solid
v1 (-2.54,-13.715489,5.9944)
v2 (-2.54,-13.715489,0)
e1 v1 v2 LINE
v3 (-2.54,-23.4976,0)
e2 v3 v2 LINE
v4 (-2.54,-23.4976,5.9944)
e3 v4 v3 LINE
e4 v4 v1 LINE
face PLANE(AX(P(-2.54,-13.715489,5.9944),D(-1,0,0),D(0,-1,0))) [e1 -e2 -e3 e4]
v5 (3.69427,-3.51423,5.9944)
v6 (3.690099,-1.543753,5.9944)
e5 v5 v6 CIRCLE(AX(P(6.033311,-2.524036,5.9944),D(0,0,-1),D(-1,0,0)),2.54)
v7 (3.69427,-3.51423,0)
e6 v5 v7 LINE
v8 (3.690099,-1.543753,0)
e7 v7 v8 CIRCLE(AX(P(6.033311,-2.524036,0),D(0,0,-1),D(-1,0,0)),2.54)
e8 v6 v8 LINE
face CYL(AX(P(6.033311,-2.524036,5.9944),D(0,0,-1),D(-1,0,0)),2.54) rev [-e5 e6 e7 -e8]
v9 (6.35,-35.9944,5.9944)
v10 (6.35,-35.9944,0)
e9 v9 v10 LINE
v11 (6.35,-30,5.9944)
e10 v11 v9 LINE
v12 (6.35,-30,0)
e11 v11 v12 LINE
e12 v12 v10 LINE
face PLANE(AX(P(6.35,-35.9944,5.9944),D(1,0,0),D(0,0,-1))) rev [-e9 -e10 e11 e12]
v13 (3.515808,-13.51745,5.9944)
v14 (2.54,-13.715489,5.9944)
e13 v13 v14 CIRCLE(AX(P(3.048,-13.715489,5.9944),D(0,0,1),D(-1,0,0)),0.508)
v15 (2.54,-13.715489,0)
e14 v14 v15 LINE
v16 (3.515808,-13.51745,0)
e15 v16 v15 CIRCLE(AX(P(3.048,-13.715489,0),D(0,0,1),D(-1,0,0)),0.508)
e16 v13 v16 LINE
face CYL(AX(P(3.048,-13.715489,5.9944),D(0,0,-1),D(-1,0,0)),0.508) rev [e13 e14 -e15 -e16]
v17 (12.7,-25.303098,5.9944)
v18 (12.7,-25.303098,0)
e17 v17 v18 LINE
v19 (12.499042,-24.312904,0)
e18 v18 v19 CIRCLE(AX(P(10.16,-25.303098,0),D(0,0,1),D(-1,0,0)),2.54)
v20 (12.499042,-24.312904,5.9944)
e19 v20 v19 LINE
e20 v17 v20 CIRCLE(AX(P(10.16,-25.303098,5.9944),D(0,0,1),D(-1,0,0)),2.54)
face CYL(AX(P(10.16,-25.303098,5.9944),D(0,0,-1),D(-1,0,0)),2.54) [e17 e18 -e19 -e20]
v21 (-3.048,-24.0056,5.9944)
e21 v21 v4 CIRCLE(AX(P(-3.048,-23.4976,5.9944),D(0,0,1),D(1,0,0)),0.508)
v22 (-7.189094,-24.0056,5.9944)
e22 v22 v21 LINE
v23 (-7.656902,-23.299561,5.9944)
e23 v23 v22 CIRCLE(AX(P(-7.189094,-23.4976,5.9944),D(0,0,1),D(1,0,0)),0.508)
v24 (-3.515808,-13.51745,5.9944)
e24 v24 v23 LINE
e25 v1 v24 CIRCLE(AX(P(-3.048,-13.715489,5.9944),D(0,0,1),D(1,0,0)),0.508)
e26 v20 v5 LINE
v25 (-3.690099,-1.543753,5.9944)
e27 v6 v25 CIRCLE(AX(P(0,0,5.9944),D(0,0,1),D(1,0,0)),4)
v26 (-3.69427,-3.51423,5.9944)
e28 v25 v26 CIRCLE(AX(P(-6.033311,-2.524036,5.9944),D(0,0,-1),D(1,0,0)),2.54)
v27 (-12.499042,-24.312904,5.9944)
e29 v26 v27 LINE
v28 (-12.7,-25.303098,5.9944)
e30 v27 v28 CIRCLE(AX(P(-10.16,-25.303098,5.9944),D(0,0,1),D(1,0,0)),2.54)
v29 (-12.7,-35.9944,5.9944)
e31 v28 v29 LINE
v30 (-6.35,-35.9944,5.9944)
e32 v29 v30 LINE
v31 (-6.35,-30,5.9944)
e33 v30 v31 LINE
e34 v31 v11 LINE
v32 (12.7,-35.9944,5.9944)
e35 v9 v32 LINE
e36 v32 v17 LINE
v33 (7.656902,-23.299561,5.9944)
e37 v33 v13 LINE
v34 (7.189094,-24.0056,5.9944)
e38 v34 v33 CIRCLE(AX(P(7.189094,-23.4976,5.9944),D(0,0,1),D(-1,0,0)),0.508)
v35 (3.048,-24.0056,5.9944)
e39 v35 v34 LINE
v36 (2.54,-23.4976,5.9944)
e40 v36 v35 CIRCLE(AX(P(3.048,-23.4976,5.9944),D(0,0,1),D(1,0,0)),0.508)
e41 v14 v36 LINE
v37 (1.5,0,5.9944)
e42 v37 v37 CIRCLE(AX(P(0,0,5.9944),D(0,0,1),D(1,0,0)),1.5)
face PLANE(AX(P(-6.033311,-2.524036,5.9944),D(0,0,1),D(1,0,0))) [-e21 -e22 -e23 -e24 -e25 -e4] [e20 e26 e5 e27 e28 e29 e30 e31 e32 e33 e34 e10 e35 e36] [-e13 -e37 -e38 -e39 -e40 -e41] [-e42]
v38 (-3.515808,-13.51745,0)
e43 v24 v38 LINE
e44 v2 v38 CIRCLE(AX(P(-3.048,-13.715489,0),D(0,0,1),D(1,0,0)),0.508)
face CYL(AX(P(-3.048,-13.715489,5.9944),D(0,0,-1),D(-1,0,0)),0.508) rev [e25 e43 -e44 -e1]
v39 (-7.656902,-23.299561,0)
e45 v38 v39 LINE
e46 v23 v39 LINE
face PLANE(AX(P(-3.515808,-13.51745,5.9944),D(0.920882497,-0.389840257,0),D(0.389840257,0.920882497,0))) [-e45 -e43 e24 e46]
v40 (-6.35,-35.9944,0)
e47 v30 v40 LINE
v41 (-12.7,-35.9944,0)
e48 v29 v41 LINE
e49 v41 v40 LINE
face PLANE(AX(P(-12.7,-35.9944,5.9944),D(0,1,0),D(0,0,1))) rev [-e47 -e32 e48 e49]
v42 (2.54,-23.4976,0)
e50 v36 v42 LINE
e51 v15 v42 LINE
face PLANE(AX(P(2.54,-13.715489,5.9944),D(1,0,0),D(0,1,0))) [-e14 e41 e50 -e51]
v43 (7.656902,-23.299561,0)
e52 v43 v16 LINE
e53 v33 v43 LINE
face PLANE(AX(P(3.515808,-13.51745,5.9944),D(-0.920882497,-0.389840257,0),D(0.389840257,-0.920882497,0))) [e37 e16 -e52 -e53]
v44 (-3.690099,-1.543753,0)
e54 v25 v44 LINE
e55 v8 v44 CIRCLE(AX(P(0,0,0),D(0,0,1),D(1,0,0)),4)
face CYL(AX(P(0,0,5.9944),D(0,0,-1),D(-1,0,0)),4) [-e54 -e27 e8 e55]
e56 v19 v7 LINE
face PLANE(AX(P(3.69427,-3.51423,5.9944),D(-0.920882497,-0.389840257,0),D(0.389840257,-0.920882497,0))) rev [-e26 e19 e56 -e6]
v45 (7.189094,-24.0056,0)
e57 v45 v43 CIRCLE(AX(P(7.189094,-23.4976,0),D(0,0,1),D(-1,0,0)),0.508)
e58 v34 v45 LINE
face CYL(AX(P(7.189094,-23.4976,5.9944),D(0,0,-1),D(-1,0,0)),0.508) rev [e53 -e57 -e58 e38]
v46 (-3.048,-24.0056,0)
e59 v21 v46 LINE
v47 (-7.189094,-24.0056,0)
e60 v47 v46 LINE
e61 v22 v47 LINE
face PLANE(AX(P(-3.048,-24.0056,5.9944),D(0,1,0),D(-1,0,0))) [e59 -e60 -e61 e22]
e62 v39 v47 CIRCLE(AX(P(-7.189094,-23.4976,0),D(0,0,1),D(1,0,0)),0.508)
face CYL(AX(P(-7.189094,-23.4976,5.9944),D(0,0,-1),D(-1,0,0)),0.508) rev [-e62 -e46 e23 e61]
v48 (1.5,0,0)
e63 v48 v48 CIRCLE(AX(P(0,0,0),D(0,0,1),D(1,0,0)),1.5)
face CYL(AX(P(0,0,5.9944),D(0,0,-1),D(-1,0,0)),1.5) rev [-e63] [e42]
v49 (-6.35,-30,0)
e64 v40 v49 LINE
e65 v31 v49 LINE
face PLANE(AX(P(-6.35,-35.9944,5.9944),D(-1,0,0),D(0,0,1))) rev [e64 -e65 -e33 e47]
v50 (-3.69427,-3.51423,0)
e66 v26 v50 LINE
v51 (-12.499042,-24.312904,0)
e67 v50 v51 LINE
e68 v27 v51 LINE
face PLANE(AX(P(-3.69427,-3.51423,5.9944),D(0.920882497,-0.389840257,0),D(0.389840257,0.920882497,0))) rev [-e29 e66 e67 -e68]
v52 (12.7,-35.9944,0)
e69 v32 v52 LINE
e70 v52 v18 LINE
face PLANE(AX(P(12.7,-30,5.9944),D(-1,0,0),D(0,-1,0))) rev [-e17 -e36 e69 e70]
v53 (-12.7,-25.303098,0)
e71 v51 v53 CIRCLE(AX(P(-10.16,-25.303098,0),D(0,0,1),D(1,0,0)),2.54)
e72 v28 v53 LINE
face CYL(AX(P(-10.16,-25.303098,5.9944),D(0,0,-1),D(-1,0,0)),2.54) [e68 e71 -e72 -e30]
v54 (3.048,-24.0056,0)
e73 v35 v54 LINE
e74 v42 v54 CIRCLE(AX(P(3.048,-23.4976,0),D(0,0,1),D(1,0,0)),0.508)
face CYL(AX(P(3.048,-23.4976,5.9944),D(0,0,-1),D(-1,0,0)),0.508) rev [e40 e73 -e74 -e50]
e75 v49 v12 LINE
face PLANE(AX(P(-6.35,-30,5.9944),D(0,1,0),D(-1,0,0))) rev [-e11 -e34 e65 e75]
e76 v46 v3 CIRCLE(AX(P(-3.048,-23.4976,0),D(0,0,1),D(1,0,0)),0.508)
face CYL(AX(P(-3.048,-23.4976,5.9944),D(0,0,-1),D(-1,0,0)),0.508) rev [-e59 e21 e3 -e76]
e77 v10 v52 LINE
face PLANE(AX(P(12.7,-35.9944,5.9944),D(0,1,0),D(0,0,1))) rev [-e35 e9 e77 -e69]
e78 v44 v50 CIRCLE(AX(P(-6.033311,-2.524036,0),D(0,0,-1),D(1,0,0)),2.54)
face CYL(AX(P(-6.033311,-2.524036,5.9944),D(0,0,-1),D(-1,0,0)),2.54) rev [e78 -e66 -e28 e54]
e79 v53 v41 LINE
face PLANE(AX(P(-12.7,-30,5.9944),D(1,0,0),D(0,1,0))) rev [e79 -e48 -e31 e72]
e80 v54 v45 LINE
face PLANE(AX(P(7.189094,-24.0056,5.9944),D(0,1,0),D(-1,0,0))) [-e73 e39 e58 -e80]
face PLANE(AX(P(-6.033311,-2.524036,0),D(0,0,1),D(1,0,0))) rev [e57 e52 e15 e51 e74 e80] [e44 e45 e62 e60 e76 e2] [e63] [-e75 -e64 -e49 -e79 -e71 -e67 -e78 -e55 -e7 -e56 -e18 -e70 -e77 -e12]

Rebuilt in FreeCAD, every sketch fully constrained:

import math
import FreeCAD as App
import Part
import Sketcher
Q = App.Units.Quantity

doc = App.newDocument("Part")
body = doc.addObject("PartDesign::Body", "Body")

sketch1 = body.newObject("Sketcher::SketchObject", "Sketch")
sketch1.AttachmentSupport = (doc.getObject("XY_Plane"), [""])
sketch1.MapMode = "FlatFace"
sketch1.addGeometry([
    Part.LineSegment(App.Vector(-12.7, -25.3, 0), App.Vector(-12.7, -36, 0)),
    Part.LineSegment(App.Vector(-12.7, -36, 0), App.Vector(-6.3, -36, 0)),
    Part.LineSegment(App.Vector(-6.3, -36, 0), App.Vector(-6.3, -30, 0)),
    Part.LineSegment(App.Vector(-6.3, -30, 0), App.Vector(6.3, -30, 0)),
    Part.LineSegment(App.Vector(6.3, -30, 0), App.Vector(6.3, -36, 0)),
    Part.LineSegment(App.Vector(6.3, -36, 0), App.Vector(12.7, -36, 0)),
    Part.LineSegment(App.Vector(12.7, -36, 0), App.Vector(12.7, -25.3, 0)),
    Part.ArcOfCircle(Part.Circle(App.Vector(10.2, -25.3, 0), App.Vector(0, 0, 1), 2.5), math.radians(0), math.radians(23)),
    Part.LineSegment(App.Vector(12.5, -24.3, 0), App.Vector(3.7, -3.5, 0)),
    Part.ArcOfCircle(Part.Circle(App.Vector(6, -2.5, 0), App.Vector(0, 0, 1), 2.5), math.radians(157), math.radians(203)),
    Part.ArcOfCircle(Part.Circle(App.Vector(0, 0, 0), App.Vector(0, 0, 1), 4), math.radians(-23), math.radians(203)),
    Part.ArcOfCircle(Part.Circle(App.Vector(-6, -2.5, 0), App.Vector(0, 0, 1), 2.5), math.radians(-23), math.radians(23)),
    Part.LineSegment(App.Vector(-3.7, -3.5, 0), App.Vector(-12.5, -24.3, 0)),
    Part.ArcOfCircle(Part.Circle(App.Vector(-10.2, -25.3, 0), App.Vector(0, 0, 1), 2.5), math.radians(157), math.radians(180)),
    Part.LineSegment(App.Vector(-2.5, -13.7, 0), App.Vector(-2.5, -23.5, 0)),
    Part.ArcOfCircle(Part.Circle(App.Vector(-3, -23.5, 0), App.Vector(0, 0, 1), 0.5), math.radians(-90), math.radians(0)),
    Part.LineSegment(App.Vector(-3, -24, 0), App.Vector(-7.2, -24, 0)),
    Part.ArcOfCircle(Part.Circle(App.Vector(-7.2, -23.5, 0), App.Vector(0, 0, 1), 0.5), math.radians(157), math.radians(270)),
    Part.LineSegment(App.Vector(-7.7, -23.3, 0), App.Vector(-3.5, -13.5, 0)),
    Part.ArcOfCircle(Part.Circle(App.Vector(-3, -13.7, 0), App.Vector(0, 0, 1), 0.5), math.radians(0), math.radians(157)),
    Part.LineSegment(App.Vector(3.5, -13.5, 0), App.Vector(7.7, -23.3, 0)),
    Part.ArcOfCircle(Part.Circle(App.Vector(7.2, -23.5, 0), App.Vector(0, 0, 1), 0.5), math.radians(-90), math.radians(23)),
    Part.LineSegment(App.Vector(7.2, -24, 0), App.Vector(3, -24, 0)),
    Part.ArcOfCircle(Part.Circle(App.Vector(3, -23.5, 0), App.Vector(0, 0, 1), 0.5), math.radians(180), math.radians(270)),
    Part.LineSegment(App.Vector(2.5, -23.5, 0), App.Vector(2.5, -13.7, 0)),
    Part.ArcOfCircle(Part.Circle(App.Vector(3, -13.7, 0), App.Vector(0, 0, 1), 0.5), math.radians(23), math.radians(180)),
    Part.Circle(App.Vector(0, 0, 0), App.Vector(0, 0, 1), 1.5),
], False)
sketch1.addConstraint([
    Sketcher.Constraint("Coincident", 0, 2, 1, 1),
    Sketcher.Constraint("Coincident", 1, 2, 2, 1),
    Sketcher.Constraint("Coincident", 2, 2, 3, 1),
    Sketcher.Constraint("Coincident", 3, 2, 4, 1),
    Sketcher.Constraint("Coincident", 4, 2, 5, 1),
    Sketcher.Constraint("Coincident", 5, 2, 6, 1),
    Sketcher.Constraint("Tangent", 6, 2, 7, 1),
    Sketcher.Constraint("Tangent", 7, 2, 8, 1),
    Sketcher.Constraint("Tangent", 8, 2, 9, 2),
    Sketcher.Constraint("Tangent", 9, 1, 10, 1),
    Sketcher.Constraint("Tangent", 10, 2, 11, 2),
    Sketcher.Constraint("Tangent", 11, 1, 12, 1),
    Sketcher.Constraint("Tangent", 12, 2, 13, 1),
    Sketcher.Constraint("Tangent", 13, 2, 0, 1),
    Sketcher.Constraint("Tangent", 14, 2, 15, 2),
    Sketcher.Constraint("Tangent", 15, 1, 16, 1),
    Sketcher.Constraint("Tangent", 16, 2, 17, 2),
    Sketcher.Constraint("Tangent", 17, 1, 18, 1),
    Sketcher.Constraint("Tangent", 18, 2, 19, 2),
    Sketcher.Constraint("Tangent", 19, 1, 14, 1),
    Sketcher.Constraint("Tangent", 20, 2, 21, 2),
    Sketcher.Constraint("Tangent", 21, 1, 22, 1),
    Sketcher.Constraint("Tangent", 22, 2, 23, 2),
    Sketcher.Constraint("Tangent", 23, 1, 24, 1),
    Sketcher.Constraint("Tangent", 24, 2, 25, 2),
    Sketcher.Constraint("Tangent", 25, 1, 20, 1),
    Sketcher.Constraint("Vertical", 0),
    Sketcher.Constraint("Horizontal", 1),
    Sketcher.Constraint("Vertical", 2),
    Sketcher.Constraint("Horizontal", 3),
    Sketcher.Constraint("Vertical", 4),
    Sketcher.Constraint("Horizontal", 5),
    Sketcher.Constraint("Vertical", 6),
    Sketcher.Constraint("Vertical", 14),
    Sketcher.Constraint("Horizontal", 16),
    Sketcher.Constraint("Horizontal", 22),
    Sketcher.Constraint("Vertical", 24),
    Sketcher.Constraint("Coincident", 10, 3, -1, 1),
    Sketcher.Constraint("Coincident", 26, 3, -1, 1),
    Sketcher.Constraint("Equal", 7, 9),
    Sketcher.Constraint("Equal", 9, 11),
    Sketcher.Constraint("Equal", 11, 13),
    Sketcher.Constraint("Equal", 15, 17),
    Sketcher.Constraint("Equal", 17, 19),
    Sketcher.Constraint("Equal", 19, 21),
    Sketcher.Constraint("Equal", 21, 23),
    Sketcher.Constraint("Equal", 23, 25),
    Sketcher.Constraint("Symmetric", 7, 3, 13, 3, -2),
    Sketcher.Constraint("Symmetric", 17, 3, 21, 3, -2),
    Sketcher.Constraint("Symmetric", 19, 3, 25, 3, -2),
    Sketcher.Constraint("Symmetric", 1, 2, 4, 2, -2),
    Sketcher.Constraint("Parallel", 12, 18),
    Sketcher.Constraint("Parallel", 8, 20),
    Sketcher.Constraint("Radius", 7, Q("0.1 in")),
    Sketcher.Constraint("Radius", 15, Q("0.02 in")),
    Sketcher.Constraint("DistanceX", 3, 1, 3, 2, Q("0.5 in")),
    Sketcher.Constraint("DistanceX", 1, 1, 1, 2, Q("0.25 in")),
    Sketcher.Constraint("DistanceX", 14, 2, -1, 1, Q("0.1 in")),
    Sketcher.Constraint("Diameter", 26, 3.0),
    Sketcher.Constraint("DistanceY", 2, 1, 2, 2, Q("0.236 in")),
    Sketcher.Constraint("Radius", 10, 4.0),
    Sketcher.Constraint("DistanceY", 0, 2, 17, 3, Q("0.492 in")),
    Sketcher.Constraint("DistanceY", 14, 2, 14, 1, 9.782111),
    Sketcher.Constraint("DistanceY", 15, 3, -1, 1, 23.4976),
    Sketcher.Constraint("DistanceX", -1, 1, 9, 1, 3.690099),
    Sketcher.Constraint("DistanceX", 17, 1, -1, 1, 7.656902),
])
pad1 = body.newObject("PartDesign::Pad", "Pad")
pad1.Profile = sketch1
pad1.Length = Q("0.236 in")

doc.recompute()
